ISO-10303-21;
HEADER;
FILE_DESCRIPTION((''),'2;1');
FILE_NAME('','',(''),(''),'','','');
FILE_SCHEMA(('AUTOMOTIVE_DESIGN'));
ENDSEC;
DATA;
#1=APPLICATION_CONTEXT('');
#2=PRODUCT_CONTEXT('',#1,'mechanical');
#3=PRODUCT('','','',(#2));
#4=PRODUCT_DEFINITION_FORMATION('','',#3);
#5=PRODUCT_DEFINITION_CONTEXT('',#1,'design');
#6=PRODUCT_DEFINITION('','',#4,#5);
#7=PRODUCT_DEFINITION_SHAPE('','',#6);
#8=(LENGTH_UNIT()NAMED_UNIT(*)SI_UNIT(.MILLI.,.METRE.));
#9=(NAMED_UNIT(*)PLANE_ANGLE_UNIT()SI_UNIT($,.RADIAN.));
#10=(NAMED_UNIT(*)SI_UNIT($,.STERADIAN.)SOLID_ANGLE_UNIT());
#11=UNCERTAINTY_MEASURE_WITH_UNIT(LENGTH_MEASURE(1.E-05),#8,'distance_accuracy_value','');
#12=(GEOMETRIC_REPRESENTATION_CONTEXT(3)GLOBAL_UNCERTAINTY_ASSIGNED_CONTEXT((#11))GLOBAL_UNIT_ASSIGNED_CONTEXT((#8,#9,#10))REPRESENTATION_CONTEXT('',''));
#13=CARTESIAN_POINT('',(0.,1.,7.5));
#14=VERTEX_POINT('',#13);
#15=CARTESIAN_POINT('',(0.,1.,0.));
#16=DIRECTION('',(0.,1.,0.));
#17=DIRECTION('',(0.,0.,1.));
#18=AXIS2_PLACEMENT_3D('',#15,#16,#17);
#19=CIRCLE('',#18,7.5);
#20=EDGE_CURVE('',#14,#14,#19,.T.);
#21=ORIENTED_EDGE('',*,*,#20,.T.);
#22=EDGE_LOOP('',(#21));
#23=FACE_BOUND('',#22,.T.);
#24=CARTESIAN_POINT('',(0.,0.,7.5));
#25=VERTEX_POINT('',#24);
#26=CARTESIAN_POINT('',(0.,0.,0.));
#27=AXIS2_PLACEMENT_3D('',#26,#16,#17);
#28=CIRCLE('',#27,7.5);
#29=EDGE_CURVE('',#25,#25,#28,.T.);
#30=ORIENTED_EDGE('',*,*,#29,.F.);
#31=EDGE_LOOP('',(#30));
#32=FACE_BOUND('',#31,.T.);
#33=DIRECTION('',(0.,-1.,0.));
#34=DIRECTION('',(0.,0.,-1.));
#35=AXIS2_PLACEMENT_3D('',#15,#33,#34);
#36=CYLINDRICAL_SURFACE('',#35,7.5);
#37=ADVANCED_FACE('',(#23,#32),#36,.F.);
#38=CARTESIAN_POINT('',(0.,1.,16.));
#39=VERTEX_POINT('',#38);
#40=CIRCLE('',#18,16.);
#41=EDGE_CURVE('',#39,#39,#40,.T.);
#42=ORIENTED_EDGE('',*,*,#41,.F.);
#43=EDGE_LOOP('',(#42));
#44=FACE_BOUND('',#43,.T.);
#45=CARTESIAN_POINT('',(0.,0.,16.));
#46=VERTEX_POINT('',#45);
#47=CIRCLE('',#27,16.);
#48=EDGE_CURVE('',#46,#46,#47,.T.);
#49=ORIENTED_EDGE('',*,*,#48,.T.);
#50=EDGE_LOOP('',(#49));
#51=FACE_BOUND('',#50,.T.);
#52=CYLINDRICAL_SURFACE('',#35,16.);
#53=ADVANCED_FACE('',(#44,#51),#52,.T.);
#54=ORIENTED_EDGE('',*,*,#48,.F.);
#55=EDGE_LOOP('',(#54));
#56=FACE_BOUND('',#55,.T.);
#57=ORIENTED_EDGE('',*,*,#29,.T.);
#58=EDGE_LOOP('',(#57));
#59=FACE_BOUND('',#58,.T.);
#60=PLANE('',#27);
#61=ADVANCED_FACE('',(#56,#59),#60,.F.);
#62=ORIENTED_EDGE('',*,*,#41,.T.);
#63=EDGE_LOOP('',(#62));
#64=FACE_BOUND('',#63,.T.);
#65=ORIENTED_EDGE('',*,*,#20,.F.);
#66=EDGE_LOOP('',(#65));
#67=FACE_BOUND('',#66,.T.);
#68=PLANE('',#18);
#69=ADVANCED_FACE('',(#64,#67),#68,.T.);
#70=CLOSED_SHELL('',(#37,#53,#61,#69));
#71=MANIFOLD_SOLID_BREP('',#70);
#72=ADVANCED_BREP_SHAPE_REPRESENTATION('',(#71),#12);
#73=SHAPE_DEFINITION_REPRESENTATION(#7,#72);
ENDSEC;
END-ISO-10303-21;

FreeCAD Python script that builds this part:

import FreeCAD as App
import Part
import Sketcher
from FreeCAD import Vector

doc = App.newDocument("Part")
params = doc.addObject("Spreadsheet::Sheet", "Params")
for row, (alias, value) in enumerate([
    ("sketch1_diameter", "32 mm"),
    ("sketch1_diameter2", "15 mm"),
    ("pad1_length", "1 mm"),
], start=1):
    params.set(f"A{row}", alias)
    params.set(f"B{row}", "=" + value)
    params.setAlias(f"B{row}", alias)

body = doc.addObject("PartDesign::Body", "Body")

sketch1 = body.newObject("Sketcher::SketchObject", "Sketch")
sketch1.AttachmentSupport = (doc.getObject("XZ_Plane"), [""])
sketch1.MapMode = "FlatFace"
sketch1.addGeometry([
    Part.Circle(Vector(0, 0, 0), Vector(0, 0, 1), 16),
    Part.Circle(Vector(0, 0, 0), Vector(0, 0, 1), 8),
], False)
sketch1.addConstraint([
    Sketcher.Constraint("Coincident", 0, 3, -1, 1),
    Sketcher.Constraint("Coincident", 1, 3, -1, 1),
    Sketcher.Constraint("Diameter", 0, 32.0),
    Sketcher.Constraint("Diameter", 1, 15.0),
])
sketch1.setExpression("Constraints[2]", "Params.sketch1_diameter")
sketch1.setExpression("Constraints[3]", "Params.sketch1_diameter2")
pad1 = body.newObject("PartDesign::Pad", "Pad")
pad1.Profile = sketch1
pad1.setExpression("Length", "Params.pad1_length")
pad1.Reversed = True

doc.recompute()
